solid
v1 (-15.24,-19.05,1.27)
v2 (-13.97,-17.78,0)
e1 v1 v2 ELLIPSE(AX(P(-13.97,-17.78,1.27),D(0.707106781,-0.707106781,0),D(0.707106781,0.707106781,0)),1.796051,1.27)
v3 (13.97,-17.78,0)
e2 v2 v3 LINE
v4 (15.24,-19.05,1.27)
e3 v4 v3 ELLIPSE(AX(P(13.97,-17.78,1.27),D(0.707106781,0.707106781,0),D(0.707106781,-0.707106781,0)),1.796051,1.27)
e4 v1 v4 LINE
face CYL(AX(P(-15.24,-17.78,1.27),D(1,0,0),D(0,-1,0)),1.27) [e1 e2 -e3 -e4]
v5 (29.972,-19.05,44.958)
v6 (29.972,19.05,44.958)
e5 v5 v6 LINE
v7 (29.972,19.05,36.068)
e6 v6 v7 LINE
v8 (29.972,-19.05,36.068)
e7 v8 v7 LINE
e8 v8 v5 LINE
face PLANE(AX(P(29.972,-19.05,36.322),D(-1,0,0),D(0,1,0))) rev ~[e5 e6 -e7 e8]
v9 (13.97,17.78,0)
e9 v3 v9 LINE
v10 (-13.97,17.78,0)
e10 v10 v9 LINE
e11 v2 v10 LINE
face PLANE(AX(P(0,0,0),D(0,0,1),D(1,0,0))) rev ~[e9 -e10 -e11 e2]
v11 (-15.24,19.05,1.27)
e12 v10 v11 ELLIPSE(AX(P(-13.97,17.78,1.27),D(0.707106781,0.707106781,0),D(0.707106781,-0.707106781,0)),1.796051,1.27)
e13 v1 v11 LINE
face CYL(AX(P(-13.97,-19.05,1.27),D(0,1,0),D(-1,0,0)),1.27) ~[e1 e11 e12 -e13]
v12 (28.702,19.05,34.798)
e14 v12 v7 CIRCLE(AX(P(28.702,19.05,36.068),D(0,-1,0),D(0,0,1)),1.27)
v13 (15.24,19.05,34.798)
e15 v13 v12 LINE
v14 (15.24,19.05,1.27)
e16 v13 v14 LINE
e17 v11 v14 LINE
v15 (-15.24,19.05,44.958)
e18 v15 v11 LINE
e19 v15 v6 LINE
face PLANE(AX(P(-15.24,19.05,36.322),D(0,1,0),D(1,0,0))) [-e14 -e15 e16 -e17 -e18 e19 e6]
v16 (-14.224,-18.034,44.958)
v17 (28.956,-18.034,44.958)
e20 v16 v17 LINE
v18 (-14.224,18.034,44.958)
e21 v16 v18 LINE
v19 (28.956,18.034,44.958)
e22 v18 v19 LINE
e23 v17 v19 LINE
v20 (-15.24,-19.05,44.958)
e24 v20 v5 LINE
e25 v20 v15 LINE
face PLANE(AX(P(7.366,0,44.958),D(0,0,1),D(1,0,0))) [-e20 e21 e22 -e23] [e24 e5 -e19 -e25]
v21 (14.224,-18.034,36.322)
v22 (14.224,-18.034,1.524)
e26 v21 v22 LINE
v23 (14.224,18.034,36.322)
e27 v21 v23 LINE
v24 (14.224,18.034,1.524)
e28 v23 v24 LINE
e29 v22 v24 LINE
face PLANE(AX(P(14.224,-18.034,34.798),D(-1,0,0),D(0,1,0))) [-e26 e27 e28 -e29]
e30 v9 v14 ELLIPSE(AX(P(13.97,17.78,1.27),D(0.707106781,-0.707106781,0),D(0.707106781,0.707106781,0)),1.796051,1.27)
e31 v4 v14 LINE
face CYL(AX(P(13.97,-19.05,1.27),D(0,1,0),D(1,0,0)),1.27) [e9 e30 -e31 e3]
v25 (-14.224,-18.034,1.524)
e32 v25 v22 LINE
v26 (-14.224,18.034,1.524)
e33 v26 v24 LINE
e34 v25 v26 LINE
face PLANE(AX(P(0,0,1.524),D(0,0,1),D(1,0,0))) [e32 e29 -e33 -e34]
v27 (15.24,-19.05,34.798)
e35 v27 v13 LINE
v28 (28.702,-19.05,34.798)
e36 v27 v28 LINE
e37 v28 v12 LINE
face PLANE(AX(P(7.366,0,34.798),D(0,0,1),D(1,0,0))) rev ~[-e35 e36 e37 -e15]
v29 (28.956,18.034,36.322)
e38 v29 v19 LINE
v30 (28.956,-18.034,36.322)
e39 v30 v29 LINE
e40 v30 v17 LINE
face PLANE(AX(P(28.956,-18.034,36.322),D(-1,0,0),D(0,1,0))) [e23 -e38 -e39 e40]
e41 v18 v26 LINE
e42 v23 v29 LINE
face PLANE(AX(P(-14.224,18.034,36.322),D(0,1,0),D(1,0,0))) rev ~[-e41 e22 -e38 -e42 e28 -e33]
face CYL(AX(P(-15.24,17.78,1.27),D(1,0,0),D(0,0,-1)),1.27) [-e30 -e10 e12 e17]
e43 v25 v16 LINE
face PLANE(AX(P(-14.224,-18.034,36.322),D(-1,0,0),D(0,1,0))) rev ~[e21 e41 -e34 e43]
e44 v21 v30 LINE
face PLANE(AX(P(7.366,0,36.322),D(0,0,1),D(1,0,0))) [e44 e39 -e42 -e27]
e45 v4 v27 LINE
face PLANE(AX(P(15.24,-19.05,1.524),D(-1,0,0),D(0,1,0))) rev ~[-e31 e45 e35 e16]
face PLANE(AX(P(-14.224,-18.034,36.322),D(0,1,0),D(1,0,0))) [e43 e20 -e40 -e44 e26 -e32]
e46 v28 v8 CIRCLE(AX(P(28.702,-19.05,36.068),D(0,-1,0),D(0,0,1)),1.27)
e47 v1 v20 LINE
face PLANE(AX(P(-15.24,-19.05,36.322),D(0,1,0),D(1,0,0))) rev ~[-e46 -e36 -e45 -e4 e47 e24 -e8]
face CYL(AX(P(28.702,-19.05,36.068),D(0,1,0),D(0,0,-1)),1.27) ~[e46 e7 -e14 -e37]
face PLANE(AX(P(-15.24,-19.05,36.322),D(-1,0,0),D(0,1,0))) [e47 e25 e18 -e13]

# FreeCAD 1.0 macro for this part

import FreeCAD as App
import Part
import Sketcher
Q = App.Units.Quantity


def edges_at(feature, points):
    """Names of the edges that pass closest to the given points."""
    edges = feature.Shape.Edges
    near = lambda p: min(range(len(edges)), key=lambda i: edges[i].distToShape(Part.Vertex(*p))[0])
    return sorted({f"Edge{near(p) + 1}" for p in points})


def add_polygon(sketch, points):
    """Adds a closed chain of lines whose ends are joined by coincident constraints."""
    first, n = sketch.GeometryCount, len(points)
    for a, b in zip(points, points[1:] + points[:1]):
        sketch.addGeometry(Part.LineSegment(App.Vector(*a, 0), App.Vector(*b, 0)), False)
    for i in range(n):
        sketch.addConstraint(Sketcher.Constraint("Coincident", first + i, 2, first + (i + 1) % n, 1))

doc = App.newDocument("Part")
params = doc.addObject("Spreadsheet::Sheet", "Params")
for row, (alias, value) in enumerate([
    ("sketch1_width", "1.2 in"),
    ("sketch1_height", "1.5 in"),
    ("pad1_length", "0.06 in"),
    ("sketch2_width", "1.2 in"),
    ("sketch2_height", "1.5 in"),
    ("sketch2_width2", "1.12 in"),
    ("sketch2_height2", "1.42 in"),
    ("pad2_length", "1.31 in"),
    ("fillet_radius", "0.05 in"),
    ("sketch3_height", "1.5 in"),
    ("sketch3_width", "1.78 in"),
    ("sketch3_width2", "1.12 in"),
    ("sketch3_height2", "1.42 in"),
    ("pad3_length", "0.06 in"),
    ("sketch4_width", "1.7 in"),
    ("sketch4_height", "1.5 in"),
    ("sketch4_width2", "1.78 in"),
    ("sketch4_height2", "1.42 in"),
    ("pad4_length", "0.34 in"),
    ("fillet2_radius", "0.05 in"),
], start=1):
    params.set(f"A{row}", alias)
    params.set(f"B{row}", "=" + value)
    params.setAlias(f"B{row}", alias)

body = doc.addObject("PartDesign::Body", "Body")

# Sketch on XY plane
sketch1 = body.newObject("Sketcher::SketchObject", "Sketch")
sketch1.AttachmentSupport = (doc.getObject("XY_Plane"), [""])
sketch1.MapMode = "FlatFace"
add_polygon(sketch1, [(-15, 19), (-15, -19), (15, -19), (15, 19)])  # lines 0-3
sketch1.addConstraint([
    Sketcher.Constraint("Vertical", 0),
    Sketcher.Constraint("Horizontal", 1),
    Sketcher.Constraint("Vertical", 2),
    Sketcher.Constraint("Horizontal", 3),
    Sketcher.Constraint("Symmetric", 0, 2, 2, 2, -1, 1),
    Sketcher.Constraint("DistanceX", 1, 1, 1, 2, Q("1.2 in")),
    Sketcher.Constraint("DistanceY", 0, 2, 0, 1, Q("1.5 in")),
])
sketch1.setExpression("Constraints[9]", "Params.sketch1_width")
sketch1.setExpression("Constraints[10]", "Params.sketch1_height")
pad1 = body.newObject("PartDesign::Pad", "Pad")
pad1.Profile = sketch1
pad1.setExpression("Length", "Params.pad1_length")

# Sketch on XY plane
sketch2 = body.newObject("Sketcher::SketchObject", "Sketch001")
sketch2.AttachmentSupport = (doc.getObject("XY_Plane"), [""])
sketch2.MapMode = "FlatFace"
sketch2.AttachmentOffset = App.Placement(App.Vector(0, 0, 0.06 * 25.4), App.Rotation())
add_polygon(sketch2, [(-15, 19), (-15, -19), (15, -19), (15, 19)])  # lines 0-3
add_polygon(sketch2, [(14, -18), (-14, -18), (-14, 18), (14, 18)])  # lines 4-7
sketch2.addConstraint([
    Sketcher.Constraint("Vertical", 0),
    Sketcher.Constraint("Horizontal", 1),
    Sketcher.Constraint("Vertical", 2),
    Sketcher.Constraint("Horizontal", 3),
    Sketcher.Constraint("Horizontal", 4),
    Sketcher.Constraint("Vertical", 5),
    Sketcher.Constraint("Horizontal", 6),
    Sketcher.Constraint("Vertical", 7),
    Sketcher.Constraint("Symmetric", 0, 2, 2, 2, -1, 1),
    Sketcher.Constraint("Symmetric", 4, 2, 6, 2, -1, 1),
    Sketcher.Constraint("DistanceX", 1, 1, 1, 2, Q("1.2 in")),
    Sketcher.Constraint("DistanceY", 0, 2, 0, 1, Q("1.5 in")),
    Sketcher.Constraint("DistanceX", 4, 2, 4, 1, Q("1.12 in")),
    Sketcher.Constraint("DistanceY", 5, 1, 5, 2, Q("1.42 in")),
])
sketch2.setExpression("Constraints[18]", "Params.sketch2_width")
sketch2.setExpression("Constraints[19]", "Params.sketch2_height")
sketch2.setExpression("Constraints[20]", "Params.sketch2_width2")
sketch2.setExpression("Constraints[21]", "Params.sketch2_height2")
pad2 = body.newObject("PartDesign::Pad", "Pad001")
pad2.Profile = sketch2
pad2.setExpression("Length", "Params.pad2_length")
doc.recompute()

fillet = body.newObject("PartDesign::Fillet", "Fillet")
fillet.Base = (pad2, edges_at(pad2, [
    (0, 19.05, 0),
    (-15.24, 0, 0),
    (0, -19.05, 0),
    (15.24, 0, 0),
]))
fillet.setExpression("Radius", "Params.fillet_radius")

# Sketch on XY plane
sketch3 = body.newObject("Sketcher::SketchObject", "Sketch002")
sketch3.AttachmentSupport = (doc.getObject("XY_Plane"), [""])
sketch3.MapMode = "FlatFace"
sketch3.AttachmentOffset = App.Placement(App.Vector(0, 0, 1.37 * 25.4), App.Rotation())
add_polygon(sketch3, [(-15, 19), (-15, -19), (30, -19), (30, 19)])  # lines 0-3
add_polygon(sketch3, [(14, -18), (-14, -18), (-14, 18), (14, 18)])  # lines 4-7
sketch3.addConstraint([
    Sketcher.Constraint("Vertical", 0),
    Sketcher.Constraint("Horizontal", 1),
    Sketcher.Constraint("Vertical", 2),
    Sketcher.Constraint("Horizontal", 3),
    Sketcher.Constraint("Horizontal", 4),
    Sketcher.Constraint("Vertical", 5),
    Sketcher.Constraint("Horizontal", 6),
    Sketcher.Constraint("Vertical", 7),
    Sketcher.Constraint("Symmetric", 4, 2, 6, 2, -1, 1),
    Sketcher.Constraint("DistanceY", 0, 2, 0, 1, Q("1.5 in")),
    Sketcher.Constraint("DistanceX", 1, 1, 1, 2, Q("1.78 in")),
    Sketcher.Constraint("DistanceX", 4, 2, 4, 1, Q("1.12 in")),
    Sketcher.Constraint("DistanceY", 5, 1, 5, 2, Q("1.42 in")),
    Sketcher.Constraint("DistanceX", 0, 2, -1, 1, Q("0.6 in")),
    Sketcher.Constraint("DistanceY", 0, 2, -1, 1, Q("0.75 in")),
])
sketch3.setExpression("Constraints[17]", "Params.sketch3_height")
sketch3.setExpression("Constraints[18]", "Params.sketch3_width")
sketch3.setExpression("Constraints[19]", "Params.sketch3_width2")
sketch3.setExpression("Constraints[20]", "Params.sketch3_height2")
pad3 = body.newObject("PartDesign::Pad", "Pad002")
pad3.Profile = sketch3
pad3.setExpression("Length", "Params.pad3_length")

# Sketch on XY plane
sketch4 = body.newObject("Sketcher::SketchObject", "Sketch003")
sketch4.AttachmentSupport = (doc.getObject("XY_Plane"), [""])
sketch4.MapMode = "FlatFace"
sketch4.AttachmentOffset = App.Placement(App.Vector(0, 0, 1.43 * 25.4), App.Rotation())
add_polygon(sketch4, [(-15, 19), (-15, -19), (30, -19), (30, 19)])  # lines 0-3
add_polygon(sketch4, [(29, -18), (-14, -18), (-14, 18), (29, 18)])  # lines 4-7
sketch4.addConstraint([
    Sketcher.Constraint("Vertical", 0),
    Sketcher.Constraint("Horizontal", 1),
    Sketcher.Constraint("Vertical", 2),
    Sketcher.Constraint("Horizontal", 3),
    Sketcher.Constraint("Horizontal", 4),
    Sketcher.Constraint("Vertical", 5),
    Sketcher.Constraint("Horizontal", 6),
    Sketcher.Constraint("Vertical", 7),
    Sketcher.Constraint("DistanceX", 4, 2, 4, 1, Q("1.7 in")),
    Sketcher.Constraint("DistanceY", 0, 2, 0, 1, Q("1.5 in")),
    Sketcher.Constraint("DistanceX", 1, 1, 1, 2, Q("1.78 in")),
    Sketcher.Constraint("DistanceY", 5, 1, 5, 2, Q("1.42 in")),
    Sketcher.Constraint("DistanceX", 0, 2, -1, 1, Q("0.6 in")),
    Sketcher.Constraint("DistanceY", 0, 2, -1, 1, Q("0.75 in")),
    Sketcher.Constraint("DistanceX", 4, 2, -1, 1, Q("0.56 in")),
    Sketcher.Constraint("DistanceY", 4, 2, -1, 1, Q("0.71 in")),
])
sketch4.setExpression("Constraints[16]", "Params.sketch4_width")
sketch4.setExpression("Constraints[17]", "Params.sketch4_height")
sketch4.setExpression("Constraints[18]", "Params.sketch4_width2")
sketch4.setExpression("Constraints[19]", "Params.sketch4_height2")
pad4 = body.newObject("PartDesign::Pad", "Pad003")
pad4.Profile = sketch4
pad4.setExpression("Length", "Params.pad4_length")
doc.recompute()

fillet2 = body.newObject("PartDesign::Fillet", "Fillet001")
fillet2.Base = (pad4, edges_at(pad4, [(29.972, 0, 34.798)]))
fillet2.setExpression("Radius", "Params.fillet2_radius")

doc.recompute()
